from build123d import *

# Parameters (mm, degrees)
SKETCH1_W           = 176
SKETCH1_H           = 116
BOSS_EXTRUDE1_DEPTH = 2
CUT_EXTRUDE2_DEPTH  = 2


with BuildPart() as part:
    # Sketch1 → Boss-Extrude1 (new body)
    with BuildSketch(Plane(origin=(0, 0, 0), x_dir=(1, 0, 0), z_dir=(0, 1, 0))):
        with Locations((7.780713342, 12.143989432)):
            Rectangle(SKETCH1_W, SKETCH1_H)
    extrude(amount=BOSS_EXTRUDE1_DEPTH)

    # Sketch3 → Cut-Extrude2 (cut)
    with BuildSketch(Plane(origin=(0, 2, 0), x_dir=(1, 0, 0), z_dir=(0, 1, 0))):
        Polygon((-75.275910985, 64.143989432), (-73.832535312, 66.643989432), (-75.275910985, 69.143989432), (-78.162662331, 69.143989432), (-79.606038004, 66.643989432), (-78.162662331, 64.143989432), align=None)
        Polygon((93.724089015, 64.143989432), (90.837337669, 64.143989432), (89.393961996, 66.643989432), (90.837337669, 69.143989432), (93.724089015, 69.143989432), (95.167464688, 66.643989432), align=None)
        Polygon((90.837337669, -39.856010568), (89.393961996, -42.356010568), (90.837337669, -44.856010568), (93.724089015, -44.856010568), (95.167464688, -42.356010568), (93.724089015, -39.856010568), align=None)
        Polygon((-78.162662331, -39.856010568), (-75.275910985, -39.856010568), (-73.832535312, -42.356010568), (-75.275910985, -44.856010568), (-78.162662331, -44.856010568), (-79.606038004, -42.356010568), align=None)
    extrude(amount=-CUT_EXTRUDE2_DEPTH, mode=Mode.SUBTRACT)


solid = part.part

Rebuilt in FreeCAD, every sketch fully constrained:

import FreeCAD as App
import Part
import Sketcher
from FreeCAD import Vector
Q = App.Units.Quantity


def add_polygon(sketch, points):
    """Adds a closed chain of lines whose ends are joined by coincident constraints."""
    first, n = sketch.GeometryCount, len(points)
    for a, b in zip(points, points[1:] + points[:1]):
        sketch.addGeometry(Part.LineSegment(App.Vector(*a, 0), App.Vector(*b, 0)), False)
    for i in range(n):
        sketch.addConstraint(Sketcher.Constraint("Coincident", first + i, 2, first + (i + 1) % n, 1))

doc = App.newDocument("Part")
params = doc.addObject("Spreadsheet::Sheet", "Params")
for row, (alias, value) in enumerate([
    ("sketch1_width", "176 mm"),
    ("sketch1_height", "116 mm"),
    ("pad1_length", "2 mm"),
    ("pocket1_length", "2 mm"),
], start=1):
    params.set(f"A{row}", alias)
    params.set(f"B{row}", "=" + value)
    params.setAlias(f"B{row}", alias)

body = doc.addObject("PartDesign::Body", "Body")

sketch1 = body.newObject("Sketcher::SketchObject", "Sketch")
sketch1.AttachmentSupport = (doc.getObject("XZ_Plane"), [""])
sketch1.MapMode = "FlatFace"
add_polygon(sketch1, [(-80.219287, -70.143989), (-80.219287, 45.856011), (95.780713, 45.856011), (95.780713, -70.143989)])
sketch1.addConstraint([
    Sketcher.Constraint("Vertical", 0),
    Sketcher.Constraint("Horizontal", 1),
    Sketcher.Constraint("Vertical", 2),
    Sketcher.Constraint("Horizontal", 3),
    Sketcher.Constraint("DistanceX", 1, 1, 1, 2, Q("176 mm")),
    Sketcher.Constraint("DistanceY", 0, 1, 0, 2, Q("116 mm")),
    Sketcher.Constraint("DistanceY", -1, 1, 0, 2, Q("45.856011 mm")),
    Sketcher.Constraint("DistanceX", 0, 2, -1, 1, Q("80.219287 mm")),
])
sketch1.setExpression("Constraints[8]", "Params.sketch1_width")
sketch1.setExpression("Constraints[9]", "Params.sketch1_height")
pad1 = body.newObject("PartDesign::Pad", "Pad")
pad1.Profile = sketch1
pad1.setExpression("Length", "Params.pad1_length")
pad1.Reversed = True

sketch2 = body.newObject("Sketcher::SketchObject", "Sketch001")
sketch2.AttachmentSupport = (doc.getObject("XZ_Plane"), [""])
sketch2.MapMode = "FlatFace"
sketch2.AttachmentOffset = App.Placement(Vector(0, 0, -2), App.Rotation())
add_polygon(sketch2, [(-75.275911, -64.143989), (-73.832535, -66.643989), (-75.275911, -69.143989), (-78.162662, -69.143989), (-79.606038, -66.643989), (-78.162662, -64.143989)])
add_polygon(sketch2, [(90.837338, -64.143989), (93.724089, -64.143989), (95.167465, -66.643989), (93.724089, -69.143989), (90.837338, -69.143989), (89.393962, -66.643989)])
add_polygon(sketch2, [(90.837338, 39.856011), (89.393962, 42.356011), (90.837338, 44.856011), (93.724089, 44.856011), (95.167465, 42.356011), (93.724089, 39.856011)])
add_polygon(sketch2, [(-75.275911, 39.856011), (-78.162662, 39.856011), (-79.606038, 42.356011), (-78.162662, 44.856011), (-75.275911, 44.856011), (-73.832535, 42.356011)])
sketch2.addConstraint([
    Sketcher.Constraint("Horizontal", 2),
    Sketcher.Constraint("Horizontal", 5),
    Sketcher.Constraint("Horizontal", 6),
    Sketcher.Constraint("Horizontal", 9),
    Sketcher.Constraint("Horizontal", 14),
    Sketcher.Constraint("Horizontal", 17),
    Sketcher.Constraint("Horizontal", 18),
    Sketcher.Constraint("Horizontal", 21),
    Sketcher.Constraint("Parallel", 0, 3),
    Sketcher.Constraint("Parallel", 1, 4),
    Sketcher.Constraint("Parallel", 3, 7),
    Sketcher.Constraint("Parallel", 4, 8),
    Sketcher.Constraint("Parallel", 7, 10),
    Sketcher.Constraint("Parallel", 8, 11),
    Sketcher.Constraint("Parallel", 10, 12),
    Sketcher.Constraint("Parallel", 11, 13),
    Sketcher.Constraint("Parallel", 12, 15),
    Sketcher.Constraint("Parallel", 13, 16),
    Sketcher.Constraint("Parallel", 15, 19),
    Sketcher.Constraint("Parallel", 16, 20),
    Sketcher.Constraint("Parallel", 19, 22),
    Sketcher.Constraint("Parallel", 20, 23),
    Sketcher.Constraint("Horizontal", 0, 2, 3, 2),
    Sketcher.Constraint("Horizontal", 5, 2, 6, 2),
    Sketcher.Constraint("Horizontal", 3, 2, 7, 2),
    Sketcher.Constraint("Horizontal", 2, 2, 8, 2),
    Sketcher.Constraint("Horizontal", 7, 2, 10, 2),
    Sketcher.Constraint("Horizontal", 12, 2, 15, 2),
    Sketcher.Constraint("Horizontal", 17, 2, 18, 2),
    Sketcher.Constraint("Horizontal", 15, 2, 19, 2),
    Sketcher.Constraint("Horizontal", 14, 2, 20, 2),
    Sketcher.Constraint("Horizontal", 19, 2, 22, 2),
    Sketcher.Constraint("Vertical", 2, 2, 4, 2),
    Sketcher.Constraint("Vertical", 1, 2, 5, 2),
    Sketcher.Constraint("Vertical", 10, 2, 12, 2),
    Sketcher.Constraint("Vertical", 11, 2, 13, 2),
    Sketcher.Constraint("Vertical", 8, 2, 14, 2),
    Sketcher.Constraint("Vertical", 14, 2, 16, 2),
    Sketcher.Constraint("Vertical", 4, 2, 18, 2),
    Sketcher.Constraint("Vertical", 5, 2, 21, 2),
    Sketcher.Constraint("Equal", 5, 6),
    Sketcher.Constraint("Angle", 0, Q("-60 deg")),
    Sketcher.Constraint("DistanceY", 2, 2, 4, 2, Q("5 mm")),
    Sketcher.Constraint("DistanceX", 5, 2, 6, 2, Q("169 mm")),
    Sketcher.Constraint("DistanceY", 10, 2, 12, 2, Q("109 mm")),
    Sketcher.Constraint("DistanceX", 2, 2, 2, 1, Q("2.886751 mm")),
    Sketcher.Constraint("DistanceY", 0, 2, -1, 1, Q("66.643989 mm")),
    Sketcher.Constraint("DistanceX", 1, 2, -1, 1, Q("75.275911 mm")),
])
pocket1 = body.newObject("PartDesign::Pocket", "Pocket")
pocket1.Profile = sketch2
pocket1.setExpression("Length", "Params.pocket1_length")
pocket1.Reversed = True

doc.recompute()
